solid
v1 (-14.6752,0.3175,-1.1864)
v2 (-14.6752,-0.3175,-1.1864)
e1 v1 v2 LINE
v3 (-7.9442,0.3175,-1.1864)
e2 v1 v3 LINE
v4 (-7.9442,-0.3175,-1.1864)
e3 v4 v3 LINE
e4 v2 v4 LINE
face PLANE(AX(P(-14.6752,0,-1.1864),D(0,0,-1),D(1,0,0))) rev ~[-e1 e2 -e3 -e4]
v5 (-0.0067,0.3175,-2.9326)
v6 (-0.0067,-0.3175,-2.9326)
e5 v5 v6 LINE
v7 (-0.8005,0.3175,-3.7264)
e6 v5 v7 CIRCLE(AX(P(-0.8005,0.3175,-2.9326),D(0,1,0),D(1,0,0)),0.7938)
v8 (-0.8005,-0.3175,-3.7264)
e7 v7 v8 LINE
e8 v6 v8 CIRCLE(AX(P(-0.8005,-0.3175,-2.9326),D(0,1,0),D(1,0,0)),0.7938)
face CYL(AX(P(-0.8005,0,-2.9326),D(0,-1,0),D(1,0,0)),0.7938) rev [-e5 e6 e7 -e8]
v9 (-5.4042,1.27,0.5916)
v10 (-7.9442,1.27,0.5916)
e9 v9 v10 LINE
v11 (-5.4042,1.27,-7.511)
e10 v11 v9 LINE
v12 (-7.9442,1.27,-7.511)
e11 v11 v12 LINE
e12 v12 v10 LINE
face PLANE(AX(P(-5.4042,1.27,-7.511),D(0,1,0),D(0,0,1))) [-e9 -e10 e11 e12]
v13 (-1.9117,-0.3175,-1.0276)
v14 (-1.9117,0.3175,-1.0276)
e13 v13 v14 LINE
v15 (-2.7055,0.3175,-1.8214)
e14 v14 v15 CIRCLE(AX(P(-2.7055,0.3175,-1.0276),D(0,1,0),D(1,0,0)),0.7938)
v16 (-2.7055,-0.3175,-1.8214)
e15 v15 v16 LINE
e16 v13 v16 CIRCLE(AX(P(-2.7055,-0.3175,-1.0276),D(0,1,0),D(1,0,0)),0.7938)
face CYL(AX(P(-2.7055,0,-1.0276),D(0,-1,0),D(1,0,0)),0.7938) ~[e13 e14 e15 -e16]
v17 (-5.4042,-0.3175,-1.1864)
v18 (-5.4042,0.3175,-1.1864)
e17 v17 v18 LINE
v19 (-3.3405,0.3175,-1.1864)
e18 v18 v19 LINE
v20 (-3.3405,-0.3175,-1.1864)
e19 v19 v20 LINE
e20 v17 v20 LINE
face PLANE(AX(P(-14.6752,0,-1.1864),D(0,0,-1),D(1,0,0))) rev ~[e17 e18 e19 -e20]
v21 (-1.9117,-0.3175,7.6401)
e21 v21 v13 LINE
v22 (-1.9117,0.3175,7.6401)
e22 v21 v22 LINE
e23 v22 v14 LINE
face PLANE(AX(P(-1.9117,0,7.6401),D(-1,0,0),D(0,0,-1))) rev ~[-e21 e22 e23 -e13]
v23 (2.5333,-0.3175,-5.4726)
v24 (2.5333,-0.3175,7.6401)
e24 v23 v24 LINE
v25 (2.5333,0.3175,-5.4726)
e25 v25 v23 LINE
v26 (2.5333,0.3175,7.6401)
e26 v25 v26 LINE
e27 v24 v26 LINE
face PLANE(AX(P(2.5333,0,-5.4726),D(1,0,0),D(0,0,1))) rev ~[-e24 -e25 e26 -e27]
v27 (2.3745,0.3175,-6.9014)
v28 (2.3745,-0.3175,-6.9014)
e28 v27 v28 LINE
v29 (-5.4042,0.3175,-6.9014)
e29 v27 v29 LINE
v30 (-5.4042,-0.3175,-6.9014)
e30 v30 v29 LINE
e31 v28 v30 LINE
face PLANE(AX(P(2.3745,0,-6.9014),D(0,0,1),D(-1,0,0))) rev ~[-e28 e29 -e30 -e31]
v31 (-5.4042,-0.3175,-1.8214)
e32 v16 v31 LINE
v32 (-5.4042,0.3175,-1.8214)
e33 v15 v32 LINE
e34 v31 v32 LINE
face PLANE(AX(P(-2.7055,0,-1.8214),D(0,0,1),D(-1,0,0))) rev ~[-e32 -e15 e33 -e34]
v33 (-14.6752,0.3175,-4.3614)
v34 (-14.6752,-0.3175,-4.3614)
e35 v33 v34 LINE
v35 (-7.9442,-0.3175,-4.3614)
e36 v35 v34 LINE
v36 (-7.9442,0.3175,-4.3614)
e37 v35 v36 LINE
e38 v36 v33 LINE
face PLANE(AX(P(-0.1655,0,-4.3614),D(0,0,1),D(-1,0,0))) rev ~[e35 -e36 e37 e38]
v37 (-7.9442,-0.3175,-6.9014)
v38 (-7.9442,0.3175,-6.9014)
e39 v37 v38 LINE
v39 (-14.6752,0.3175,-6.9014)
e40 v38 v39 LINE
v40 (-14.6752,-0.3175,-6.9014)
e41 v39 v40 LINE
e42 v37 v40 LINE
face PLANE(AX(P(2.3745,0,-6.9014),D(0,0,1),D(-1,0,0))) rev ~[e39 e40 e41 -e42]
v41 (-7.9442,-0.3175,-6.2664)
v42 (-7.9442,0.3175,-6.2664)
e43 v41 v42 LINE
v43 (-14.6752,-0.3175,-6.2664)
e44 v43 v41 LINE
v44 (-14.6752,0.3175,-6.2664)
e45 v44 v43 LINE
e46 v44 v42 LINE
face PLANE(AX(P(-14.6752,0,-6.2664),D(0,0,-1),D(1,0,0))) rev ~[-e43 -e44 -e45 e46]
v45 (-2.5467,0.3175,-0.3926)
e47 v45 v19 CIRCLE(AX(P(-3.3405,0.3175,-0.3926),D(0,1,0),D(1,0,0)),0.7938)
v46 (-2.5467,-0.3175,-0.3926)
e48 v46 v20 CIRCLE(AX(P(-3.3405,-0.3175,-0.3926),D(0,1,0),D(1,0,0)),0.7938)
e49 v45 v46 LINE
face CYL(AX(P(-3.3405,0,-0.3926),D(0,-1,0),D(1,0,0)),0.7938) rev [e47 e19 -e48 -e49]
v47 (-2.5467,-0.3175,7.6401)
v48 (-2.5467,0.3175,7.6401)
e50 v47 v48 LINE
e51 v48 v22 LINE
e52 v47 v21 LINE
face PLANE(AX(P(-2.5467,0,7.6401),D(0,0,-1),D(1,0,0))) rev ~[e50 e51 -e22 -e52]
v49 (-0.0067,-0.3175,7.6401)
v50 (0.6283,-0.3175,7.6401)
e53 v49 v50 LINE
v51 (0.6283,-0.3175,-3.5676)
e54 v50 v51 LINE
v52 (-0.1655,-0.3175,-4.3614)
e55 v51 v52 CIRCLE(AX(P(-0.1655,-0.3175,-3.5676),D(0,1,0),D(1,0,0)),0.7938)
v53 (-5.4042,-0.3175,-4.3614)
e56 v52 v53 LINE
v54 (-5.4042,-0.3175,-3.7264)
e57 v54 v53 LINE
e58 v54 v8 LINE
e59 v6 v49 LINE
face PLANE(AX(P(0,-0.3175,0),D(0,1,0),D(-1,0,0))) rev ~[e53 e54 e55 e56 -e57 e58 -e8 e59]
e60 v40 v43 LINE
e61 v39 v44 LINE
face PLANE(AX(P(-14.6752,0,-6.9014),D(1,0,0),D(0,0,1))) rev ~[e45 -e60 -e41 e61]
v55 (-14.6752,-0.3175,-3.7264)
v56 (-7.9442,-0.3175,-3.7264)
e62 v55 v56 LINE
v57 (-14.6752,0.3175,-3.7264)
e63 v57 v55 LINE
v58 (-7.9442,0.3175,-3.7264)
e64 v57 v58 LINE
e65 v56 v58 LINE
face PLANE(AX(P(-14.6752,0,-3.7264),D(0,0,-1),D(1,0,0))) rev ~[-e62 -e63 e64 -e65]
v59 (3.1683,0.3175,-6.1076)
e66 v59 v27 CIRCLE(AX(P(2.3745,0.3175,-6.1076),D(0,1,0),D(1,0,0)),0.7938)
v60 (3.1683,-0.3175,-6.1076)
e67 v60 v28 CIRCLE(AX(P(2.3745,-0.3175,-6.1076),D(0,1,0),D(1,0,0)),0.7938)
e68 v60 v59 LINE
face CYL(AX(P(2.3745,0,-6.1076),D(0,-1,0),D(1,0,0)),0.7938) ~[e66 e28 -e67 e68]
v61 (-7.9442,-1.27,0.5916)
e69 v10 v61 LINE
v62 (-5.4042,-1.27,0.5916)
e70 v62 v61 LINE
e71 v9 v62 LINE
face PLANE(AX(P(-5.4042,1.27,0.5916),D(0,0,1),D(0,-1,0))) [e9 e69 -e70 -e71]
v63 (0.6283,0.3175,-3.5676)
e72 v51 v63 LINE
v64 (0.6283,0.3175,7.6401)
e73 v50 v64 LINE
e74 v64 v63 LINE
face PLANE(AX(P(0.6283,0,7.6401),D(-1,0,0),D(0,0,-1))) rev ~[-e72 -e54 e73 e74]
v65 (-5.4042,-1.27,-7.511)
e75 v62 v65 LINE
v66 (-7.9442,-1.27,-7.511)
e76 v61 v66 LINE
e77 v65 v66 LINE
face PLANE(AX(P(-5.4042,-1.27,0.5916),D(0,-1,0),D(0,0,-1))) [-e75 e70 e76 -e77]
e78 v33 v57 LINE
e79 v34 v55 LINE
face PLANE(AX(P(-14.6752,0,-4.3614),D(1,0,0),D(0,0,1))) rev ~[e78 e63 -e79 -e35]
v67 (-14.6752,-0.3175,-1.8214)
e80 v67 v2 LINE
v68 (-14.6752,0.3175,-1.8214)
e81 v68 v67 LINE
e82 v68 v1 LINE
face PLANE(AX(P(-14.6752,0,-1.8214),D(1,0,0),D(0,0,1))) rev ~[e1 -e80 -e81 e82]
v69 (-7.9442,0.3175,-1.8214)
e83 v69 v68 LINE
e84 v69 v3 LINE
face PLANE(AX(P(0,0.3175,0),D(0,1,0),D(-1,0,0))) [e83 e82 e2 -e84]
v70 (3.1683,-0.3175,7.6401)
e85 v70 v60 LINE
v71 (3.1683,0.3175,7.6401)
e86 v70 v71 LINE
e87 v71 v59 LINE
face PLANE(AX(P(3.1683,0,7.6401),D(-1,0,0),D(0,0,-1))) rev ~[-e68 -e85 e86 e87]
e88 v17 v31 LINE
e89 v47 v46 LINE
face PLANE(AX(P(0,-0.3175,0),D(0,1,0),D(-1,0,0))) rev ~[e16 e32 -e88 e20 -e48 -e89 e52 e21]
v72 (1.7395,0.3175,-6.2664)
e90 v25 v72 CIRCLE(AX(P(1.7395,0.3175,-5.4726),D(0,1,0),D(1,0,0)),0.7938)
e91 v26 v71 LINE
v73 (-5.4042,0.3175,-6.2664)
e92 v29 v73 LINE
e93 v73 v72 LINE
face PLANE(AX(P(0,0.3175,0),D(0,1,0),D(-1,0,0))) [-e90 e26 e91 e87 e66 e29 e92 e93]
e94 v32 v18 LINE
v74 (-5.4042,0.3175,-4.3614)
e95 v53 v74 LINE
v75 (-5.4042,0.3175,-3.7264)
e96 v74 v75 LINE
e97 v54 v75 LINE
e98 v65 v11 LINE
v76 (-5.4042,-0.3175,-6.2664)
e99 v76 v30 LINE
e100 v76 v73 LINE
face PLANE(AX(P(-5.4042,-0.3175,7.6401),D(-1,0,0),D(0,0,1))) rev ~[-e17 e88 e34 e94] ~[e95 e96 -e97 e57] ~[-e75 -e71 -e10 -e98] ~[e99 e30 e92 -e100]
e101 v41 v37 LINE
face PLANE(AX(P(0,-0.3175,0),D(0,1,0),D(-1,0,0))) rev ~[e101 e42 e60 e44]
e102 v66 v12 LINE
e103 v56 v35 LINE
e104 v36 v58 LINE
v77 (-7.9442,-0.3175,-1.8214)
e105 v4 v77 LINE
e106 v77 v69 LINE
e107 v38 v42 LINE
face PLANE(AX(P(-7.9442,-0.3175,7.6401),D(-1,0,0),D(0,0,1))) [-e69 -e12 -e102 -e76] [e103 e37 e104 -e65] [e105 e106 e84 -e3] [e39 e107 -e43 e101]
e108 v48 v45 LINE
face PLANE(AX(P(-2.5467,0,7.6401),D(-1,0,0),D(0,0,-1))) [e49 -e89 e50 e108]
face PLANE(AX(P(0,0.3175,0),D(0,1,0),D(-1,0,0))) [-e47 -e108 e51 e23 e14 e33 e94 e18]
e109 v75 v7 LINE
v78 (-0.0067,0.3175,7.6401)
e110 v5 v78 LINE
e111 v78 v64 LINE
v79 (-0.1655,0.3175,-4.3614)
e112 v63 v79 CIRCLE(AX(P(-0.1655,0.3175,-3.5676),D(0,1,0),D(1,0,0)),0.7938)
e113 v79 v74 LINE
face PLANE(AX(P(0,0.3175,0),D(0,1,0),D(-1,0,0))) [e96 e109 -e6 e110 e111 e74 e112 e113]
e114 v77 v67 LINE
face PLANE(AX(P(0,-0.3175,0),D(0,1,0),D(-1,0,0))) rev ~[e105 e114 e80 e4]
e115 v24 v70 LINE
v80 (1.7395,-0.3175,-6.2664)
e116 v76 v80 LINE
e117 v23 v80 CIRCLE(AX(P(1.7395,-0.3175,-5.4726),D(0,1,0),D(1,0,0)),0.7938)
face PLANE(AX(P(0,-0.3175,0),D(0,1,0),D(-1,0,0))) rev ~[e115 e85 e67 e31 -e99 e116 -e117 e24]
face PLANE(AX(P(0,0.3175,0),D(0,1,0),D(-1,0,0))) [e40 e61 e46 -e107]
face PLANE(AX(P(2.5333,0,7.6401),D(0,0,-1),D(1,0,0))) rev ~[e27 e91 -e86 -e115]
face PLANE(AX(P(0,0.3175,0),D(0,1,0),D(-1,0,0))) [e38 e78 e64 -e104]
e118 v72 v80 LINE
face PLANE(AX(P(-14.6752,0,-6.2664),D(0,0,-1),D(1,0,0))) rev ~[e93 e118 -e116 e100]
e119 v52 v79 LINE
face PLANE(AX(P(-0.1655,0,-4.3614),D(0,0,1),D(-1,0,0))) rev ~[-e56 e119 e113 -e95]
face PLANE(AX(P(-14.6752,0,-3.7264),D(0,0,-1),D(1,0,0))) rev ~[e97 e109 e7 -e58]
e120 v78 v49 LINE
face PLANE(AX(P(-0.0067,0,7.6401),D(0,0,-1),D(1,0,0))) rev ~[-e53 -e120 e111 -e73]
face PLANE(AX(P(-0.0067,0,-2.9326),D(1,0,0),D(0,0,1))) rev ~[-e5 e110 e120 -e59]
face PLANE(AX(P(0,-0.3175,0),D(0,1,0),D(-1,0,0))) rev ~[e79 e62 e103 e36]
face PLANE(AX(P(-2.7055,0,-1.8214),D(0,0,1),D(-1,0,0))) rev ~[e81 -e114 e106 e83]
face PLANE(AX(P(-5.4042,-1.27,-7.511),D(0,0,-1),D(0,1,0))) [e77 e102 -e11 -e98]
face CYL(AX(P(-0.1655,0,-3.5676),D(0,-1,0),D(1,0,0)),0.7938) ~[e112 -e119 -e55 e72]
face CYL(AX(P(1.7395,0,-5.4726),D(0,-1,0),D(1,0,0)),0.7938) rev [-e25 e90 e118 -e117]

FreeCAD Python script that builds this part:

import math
import FreeCAD as App
import Part
import Sketcher

V = App.Vector
Q = App.Units.Quantity


def add_polygon(sketch, points):
    """Adds a closed chain of lines whose ends are joined by coincident constraints."""
    first, n = sketch.GeometryCount, len(points)
    for a, b in zip(points, points[1:] + points[:1]):
        sketch.addGeometry(Part.LineSegment(App.Vector(*a, 0), App.Vector(*b, 0)), False)
    for i in range(n):
        sketch.addConstraint(Sketcher.Constraint("Coincident", first + i, 2, first + (i + 1) % n, 1))

doc = App.newDocument("Part")
body = doc.addObject("PartDesign::Body", "Body")
body.AllowCompound = True

# Sketch on XZ plane
sketch1 = body.newObject("Sketcher::SketchObject", "Sketch")
sketch1.AttachmentSupport = (doc.getObject("XZ_Plane"), [""])
sketch1.MapMode = "FlatFace"
sketch1.addGeometry([
    Part.LineSegment(V(-2.5, -0.4, 0), V(-2.5, 7.6, 0)),  # 0
    Part.LineSegment(V(-2.5, 7.6, 0), V(-1.9, 7.6, 0)),  # 1
    Part.LineSegment(V(-1.9, 7.6, 0), V(-1.9, -1, 0)),  # 2
    Part.ArcOfCircle(Part.Circle(V(-2.7, -1, 0), V(0, 0, 1), 0.8), math.radians(-90), math.radians(0)),  # 3
    Part.LineSegment(V(-2.7, -1.8, 0), V(-14.7, -1.8, 0)),  # 4
    Part.LineSegment(V(-14.7, -1.8, 0), V(-14.7, -1.2, 0)),  # 5
    Part.LineSegment(V(-14.7, -1.2, 0), V(-3.3, -1.2, 0)),  # 6
    Part.ArcOfCircle(Part.Circle(V(-3.3, -0.4, 0), V(0, 0, 1), 0.8), math.radians(-90), math.radians(0)),  # 7
    Part.LineSegment(V(0, 7.6, 0), V(0.6, 7.6, 0)),  # 8
    Part.LineSegment(V(0.6, 7.6, 0), V(0.6, -3.6, 0)),  # 9
    Part.ArcOfCircle(Part.Circle(V(-0.2, -3.6, 0), V(0, 0, 1), 0.8), math.radians(-90), math.radians(0)),  # 10
    Part.LineSegment(V(-0.2, -4.4, 0), V(-14.7, -4.4, 0)),  # 11
    Part.LineSegment(V(-14.7, -4.4, 0), V(-14.7, -3.7, 0)),  # 12
    Part.LineSegment(V(-14.7, -3.7, 0), V(-0.8, -3.7, 0)),  # 13
    Part.ArcOfCircle(Part.Circle(V(-0.8, -2.9, 0), V(0, 0, 1), 0.8), math.radians(-90), math.radians(0)),  # 14
    Part.LineSegment(V(0, -2.9, 0), V(0, 7.6, 0)),  # 15
    Part.LineSegment(V(2.5, -5.5, 0), V(2.5, 7.6, 0)),  # 16
    Part.LineSegment(V(2.5, 7.6, 0), V(3.2, 7.6, 0)),  # 17
    Part.LineSegment(V(3.2, 7.6, 0), V(3.2, -6.1, 0)),  # 18
    Part.ArcOfCircle(Part.Circle(V(2.4, -6.1, 0), V(0, 0, 1), 0.8), math.radians(-90), math.radians(0)),  # 19
    Part.LineSegment(V(2.4, -6.9, 0), V(-14.7, -6.9, 0)),  # 20
    Part.LineSegment(V(-14.7, -6.9, 0), V(-14.7, -6.3, 0)),  # 21
    Part.LineSegment(V(-14.7, -6.3, 0), V(1.7, -6.3, 0)),  # 22
    Part.ArcOfCircle(Part.Circle(V(1.7, -5.5, 0), V(0, 0, 1), 0.8), math.radians(-90), math.radians(0)),  # 23
], False)
sketch1.addConstraint([
    Sketcher.Constraint("Coincident", 0, 2, 1, 1),
    Sketcher.Constraint("Coincident", 1, 2, 2, 1),
    Sketcher.Constraint("Tangent", 2, 2, 3, 2),
    Sketcher.Constraint("Tangent", 3, 1, 4, 1),
    Sketcher.Constraint("Coincident", 4, 2, 5, 1),
    Sketcher.Constraint("Coincident", 5, 2, 6, 1),
    Sketcher.Constraint("Tangent", 6, 2, 7, 1),
    Sketcher.Constraint("Tangent", 7, 2, 0, 1),
    Sketcher.Constraint("Coincident", 8, 2, 9, 1),
    Sketcher.Constraint("Tangent", 9, 2, 10, 2),
    Sketcher.Constraint("Tangent", 10, 1, 11, 1),
    Sketcher.Constraint("Coincident", 11, 2, 12, 1),
    Sketcher.Constraint("Coincident", 12, 2, 13, 1),
    Sketcher.Constraint("Tangent", 13, 2, 14, 1),
    Sketcher.Constraint("Tangent", 14, 2, 15, 1),
    Sketcher.Constraint("Coincident", 15, 2, 8, 1),
    Sketcher.Constraint("Coincident", 16, 2, 17, 1),
    Sketcher.Constraint("Coincident", 17, 2, 18, 1),
    Sketcher.Constraint("Tangent", 18, 2, 19, 2),
    Sketcher.Constraint("Tangent", 19, 1, 20, 1),
    Sketcher.Constraint("Coincident", 20, 2, 21, 1),
    Sketcher.Constraint("Coincident", 21, 2, 22, 1),
    Sketcher.Constraint("Tangent", 22, 2, 23, 1),
    Sketcher.Constraint("Tangent", 23, 2, 16, 1),
    Sketcher.Constraint("Vertical", 0),
    Sketcher.Constraint("Horizontal", 1),
    Sketcher.Constraint("Vertical", 2),
    Sketcher.Constraint("Horizontal", 4),
    Sketcher.Constraint("Vertical", 5),
    Sketcher.Constraint("Horizontal", 6),
    Sketcher.Constraint("Horizontal", 8),
    Sketcher.Constraint("Vertical", 9),
    Sketcher.Constraint("Horizontal", 11),
    Sketcher.Constraint("Vertical", 12),
    Sketcher.Constraint("Horizontal", 13),
    Sketcher.Constraint("Vertical", 15),
    Sketcher.Constraint("Vertical", 16),
    Sketcher.Constraint("Horizontal", 17),
    Sketcher.Constraint("Vertical", 18),
    Sketcher.Constraint("Horizontal", 20),
    Sketcher.Constraint("Vertical", 21),
    Sketcher.Constraint("Horizontal", 22),
    Sketcher.Constraint("Equal", 3, 7),
    Sketcher.Constraint("Equal", 7, 10),
    Sketcher.Constraint("Equal", 10, 14),
    Sketcher.Constraint("Equal", 14, 19),
    Sketcher.Constraint("Equal", 19, 23),
    Sketcher.Constraint("Horizontal", 1, 2, 8, 2),
    Sketcher.Constraint("Horizontal", 15, 2, 16, 2),
    Sketcher.Constraint("Vertical", 5, 2, 11, 2),
    Sketcher.Constraint("Vertical", 12, 2, 20, 2),
    Sketcher.Constraint("Equal", 1, 8),
    Sketcher.Constraint("Equal", 8, 17),
    Sketcher.Constraint("Equal", 17, 5),
    Sketcher.Constraint("Equal", 5, 12),
    Sketcher.Constraint("Equal", 12, 21),
    Sketcher.Constraint("Radius", 3, Q("0.031252 in")),
    Sketcher.Constraint("DistanceX", 3, 3, 10, 3, Q("0.1 in")),
    Sketcher.Constraint("DistanceY", 10, 3, 3, 3, Q("0.1 in")),
    Sketcher.Constraint("DistanceX", 10, 3, 19, 3, Q("0.1 in")),
    Sketcher.Constraint("DistanceY", 19, 3, 10, 3, Q("0.1 in")),
    Sketcher.Constraint("DistanceX", 1, 1, 1, 2, Q("0.025 in")),
    Sketcher.Constraint("DistanceX", 4, 2, 4, 1, Q("11.9697 mm")),
    Sketcher.Constraint("DistanceY", 0, 1, 0, 2, Q("8.0327 mm")),
    Sketcher.Constraint("DistanceY", -1, 1, 0, 2, Q("0.3008 in")),
    Sketcher.Constraint("DistanceX", 3, 3, -1, 1, Q("2.7055 mm")),
])
pad1 = body.newObject("PartDesign::Pad", "Pad")
pad1.Profile = sketch1
pad1.Length = Q("0.025 in")
pad1.Midplane = True

# Sketch on YZ plane
sketch2 = body.newObject("Sketcher::SketchObject", "Sketch001")
sketch2.AttachmentSupport = (doc.getObject("YZ_Plane"), [""])
sketch2.MapMode = "FlatFace"
sketch2.AttachmentOffset = App.Placement(V(0, 0, -5.4042), App.Rotation())
add_polygon(sketch2, [(-1.3, -7.5), (-1.3, 0.6), (1.3, 0.6), (1.3, -7.5)])  # lines 0-3
add_polygon(sketch2, [(0.3, -6.3), (-0.3, -6.3), (-0.3, -6.9), (0.3, -6.9)])  # lines 4-7
add_polygon(sketch2, [(0.3, -3.7), (-0.3, -3.7), (-0.3, -4.4), (0.3, -4.4)])  # lines 8-11
add_polygon(sketch2, [(0.3, -1.2), (-0.3, -1.2), (-0.3, -1.8), (0.3, -1.8)])  # lines 12-15
sketch2.addConstraint([
    Sketcher.Constraint("Vertical", 0),
    Sketcher.Constraint("Horizontal", 1),
    Sketcher.Constraint("Vertical", 2),
    Sketcher.Constraint("Horizontal", 3),
    Sketcher.Constraint("Horizontal", 4),
    Sketcher.Constraint("Vertical", 5),
    Sketcher.Constraint("Horizontal", 6),
    Sketcher.Constraint("Vertical", 7),
    Sketcher.Constraint("Horizontal", 8),
    Sketcher.Constraint("Vertical", 9),
    Sketcher.Constraint("Horizontal", 10),
    Sketcher.Constraint("Vertical", 11),
    Sketcher.Constraint("Horizontal", 12),
    Sketcher.Constraint("Vertical", 13),
    Sketcher.Constraint("Horizontal", 14),
    Sketcher.Constraint("Vertical", 15),
    Sketcher.Constraint("Vertical", 5, 2, 8, 2),
    Sketcher.Constraint("Vertical", 7, 2, 10, 2),
    Sketcher.Constraint("Vertical", 9, 2, 12, 2),
    Sketcher.Constraint("Vertical", 11, 2, 14, 2),
    Sketcher.Constraint("Equal", 14, 5),
    Sketcher.Constraint("Equal", 7, 9),
    Sketcher.Constraint("Equal", 11, 13),
    Sketcher.Constraint("DistanceX", 1, 1, 1, 2, Q("0.1 in")),
    Sketcher.Constraint("DistanceY", 4, 2, 8, 2, Q("0.1 in")),
    Sketcher.Constraint("DistanceY", 8, 2, 12, 2, Q("0.1 in")),
    Sketcher.Constraint("DistanceY", 0, 1, 0, 2, Q("0.319 in")),
    Sketcher.Constraint("DistanceY", 12, 2, 0, 2, Q("0.07 in")),
    Sketcher.Constraint("DistanceX", 4, 2, 4, 1, Q("0.025 in")),
    Sketcher.Constraint("DistanceX", 0, 2, -1, 1, Q("0.05 in")),
    Sketcher.Constraint("DistanceX", 4, 2, 2, 2, Q("0.0625 in")),
    Sketcher.Constraint("DistanceY", -1, 1, 0, 2, Q("0.0233 in")),
])
pad2 = body.newObject("PartDesign::Pad", "Pad001")
pad2.Profile = sketch2
pad2.Length = Q("0.1 in")
pad2.Reversed = True

doc.recompute()
